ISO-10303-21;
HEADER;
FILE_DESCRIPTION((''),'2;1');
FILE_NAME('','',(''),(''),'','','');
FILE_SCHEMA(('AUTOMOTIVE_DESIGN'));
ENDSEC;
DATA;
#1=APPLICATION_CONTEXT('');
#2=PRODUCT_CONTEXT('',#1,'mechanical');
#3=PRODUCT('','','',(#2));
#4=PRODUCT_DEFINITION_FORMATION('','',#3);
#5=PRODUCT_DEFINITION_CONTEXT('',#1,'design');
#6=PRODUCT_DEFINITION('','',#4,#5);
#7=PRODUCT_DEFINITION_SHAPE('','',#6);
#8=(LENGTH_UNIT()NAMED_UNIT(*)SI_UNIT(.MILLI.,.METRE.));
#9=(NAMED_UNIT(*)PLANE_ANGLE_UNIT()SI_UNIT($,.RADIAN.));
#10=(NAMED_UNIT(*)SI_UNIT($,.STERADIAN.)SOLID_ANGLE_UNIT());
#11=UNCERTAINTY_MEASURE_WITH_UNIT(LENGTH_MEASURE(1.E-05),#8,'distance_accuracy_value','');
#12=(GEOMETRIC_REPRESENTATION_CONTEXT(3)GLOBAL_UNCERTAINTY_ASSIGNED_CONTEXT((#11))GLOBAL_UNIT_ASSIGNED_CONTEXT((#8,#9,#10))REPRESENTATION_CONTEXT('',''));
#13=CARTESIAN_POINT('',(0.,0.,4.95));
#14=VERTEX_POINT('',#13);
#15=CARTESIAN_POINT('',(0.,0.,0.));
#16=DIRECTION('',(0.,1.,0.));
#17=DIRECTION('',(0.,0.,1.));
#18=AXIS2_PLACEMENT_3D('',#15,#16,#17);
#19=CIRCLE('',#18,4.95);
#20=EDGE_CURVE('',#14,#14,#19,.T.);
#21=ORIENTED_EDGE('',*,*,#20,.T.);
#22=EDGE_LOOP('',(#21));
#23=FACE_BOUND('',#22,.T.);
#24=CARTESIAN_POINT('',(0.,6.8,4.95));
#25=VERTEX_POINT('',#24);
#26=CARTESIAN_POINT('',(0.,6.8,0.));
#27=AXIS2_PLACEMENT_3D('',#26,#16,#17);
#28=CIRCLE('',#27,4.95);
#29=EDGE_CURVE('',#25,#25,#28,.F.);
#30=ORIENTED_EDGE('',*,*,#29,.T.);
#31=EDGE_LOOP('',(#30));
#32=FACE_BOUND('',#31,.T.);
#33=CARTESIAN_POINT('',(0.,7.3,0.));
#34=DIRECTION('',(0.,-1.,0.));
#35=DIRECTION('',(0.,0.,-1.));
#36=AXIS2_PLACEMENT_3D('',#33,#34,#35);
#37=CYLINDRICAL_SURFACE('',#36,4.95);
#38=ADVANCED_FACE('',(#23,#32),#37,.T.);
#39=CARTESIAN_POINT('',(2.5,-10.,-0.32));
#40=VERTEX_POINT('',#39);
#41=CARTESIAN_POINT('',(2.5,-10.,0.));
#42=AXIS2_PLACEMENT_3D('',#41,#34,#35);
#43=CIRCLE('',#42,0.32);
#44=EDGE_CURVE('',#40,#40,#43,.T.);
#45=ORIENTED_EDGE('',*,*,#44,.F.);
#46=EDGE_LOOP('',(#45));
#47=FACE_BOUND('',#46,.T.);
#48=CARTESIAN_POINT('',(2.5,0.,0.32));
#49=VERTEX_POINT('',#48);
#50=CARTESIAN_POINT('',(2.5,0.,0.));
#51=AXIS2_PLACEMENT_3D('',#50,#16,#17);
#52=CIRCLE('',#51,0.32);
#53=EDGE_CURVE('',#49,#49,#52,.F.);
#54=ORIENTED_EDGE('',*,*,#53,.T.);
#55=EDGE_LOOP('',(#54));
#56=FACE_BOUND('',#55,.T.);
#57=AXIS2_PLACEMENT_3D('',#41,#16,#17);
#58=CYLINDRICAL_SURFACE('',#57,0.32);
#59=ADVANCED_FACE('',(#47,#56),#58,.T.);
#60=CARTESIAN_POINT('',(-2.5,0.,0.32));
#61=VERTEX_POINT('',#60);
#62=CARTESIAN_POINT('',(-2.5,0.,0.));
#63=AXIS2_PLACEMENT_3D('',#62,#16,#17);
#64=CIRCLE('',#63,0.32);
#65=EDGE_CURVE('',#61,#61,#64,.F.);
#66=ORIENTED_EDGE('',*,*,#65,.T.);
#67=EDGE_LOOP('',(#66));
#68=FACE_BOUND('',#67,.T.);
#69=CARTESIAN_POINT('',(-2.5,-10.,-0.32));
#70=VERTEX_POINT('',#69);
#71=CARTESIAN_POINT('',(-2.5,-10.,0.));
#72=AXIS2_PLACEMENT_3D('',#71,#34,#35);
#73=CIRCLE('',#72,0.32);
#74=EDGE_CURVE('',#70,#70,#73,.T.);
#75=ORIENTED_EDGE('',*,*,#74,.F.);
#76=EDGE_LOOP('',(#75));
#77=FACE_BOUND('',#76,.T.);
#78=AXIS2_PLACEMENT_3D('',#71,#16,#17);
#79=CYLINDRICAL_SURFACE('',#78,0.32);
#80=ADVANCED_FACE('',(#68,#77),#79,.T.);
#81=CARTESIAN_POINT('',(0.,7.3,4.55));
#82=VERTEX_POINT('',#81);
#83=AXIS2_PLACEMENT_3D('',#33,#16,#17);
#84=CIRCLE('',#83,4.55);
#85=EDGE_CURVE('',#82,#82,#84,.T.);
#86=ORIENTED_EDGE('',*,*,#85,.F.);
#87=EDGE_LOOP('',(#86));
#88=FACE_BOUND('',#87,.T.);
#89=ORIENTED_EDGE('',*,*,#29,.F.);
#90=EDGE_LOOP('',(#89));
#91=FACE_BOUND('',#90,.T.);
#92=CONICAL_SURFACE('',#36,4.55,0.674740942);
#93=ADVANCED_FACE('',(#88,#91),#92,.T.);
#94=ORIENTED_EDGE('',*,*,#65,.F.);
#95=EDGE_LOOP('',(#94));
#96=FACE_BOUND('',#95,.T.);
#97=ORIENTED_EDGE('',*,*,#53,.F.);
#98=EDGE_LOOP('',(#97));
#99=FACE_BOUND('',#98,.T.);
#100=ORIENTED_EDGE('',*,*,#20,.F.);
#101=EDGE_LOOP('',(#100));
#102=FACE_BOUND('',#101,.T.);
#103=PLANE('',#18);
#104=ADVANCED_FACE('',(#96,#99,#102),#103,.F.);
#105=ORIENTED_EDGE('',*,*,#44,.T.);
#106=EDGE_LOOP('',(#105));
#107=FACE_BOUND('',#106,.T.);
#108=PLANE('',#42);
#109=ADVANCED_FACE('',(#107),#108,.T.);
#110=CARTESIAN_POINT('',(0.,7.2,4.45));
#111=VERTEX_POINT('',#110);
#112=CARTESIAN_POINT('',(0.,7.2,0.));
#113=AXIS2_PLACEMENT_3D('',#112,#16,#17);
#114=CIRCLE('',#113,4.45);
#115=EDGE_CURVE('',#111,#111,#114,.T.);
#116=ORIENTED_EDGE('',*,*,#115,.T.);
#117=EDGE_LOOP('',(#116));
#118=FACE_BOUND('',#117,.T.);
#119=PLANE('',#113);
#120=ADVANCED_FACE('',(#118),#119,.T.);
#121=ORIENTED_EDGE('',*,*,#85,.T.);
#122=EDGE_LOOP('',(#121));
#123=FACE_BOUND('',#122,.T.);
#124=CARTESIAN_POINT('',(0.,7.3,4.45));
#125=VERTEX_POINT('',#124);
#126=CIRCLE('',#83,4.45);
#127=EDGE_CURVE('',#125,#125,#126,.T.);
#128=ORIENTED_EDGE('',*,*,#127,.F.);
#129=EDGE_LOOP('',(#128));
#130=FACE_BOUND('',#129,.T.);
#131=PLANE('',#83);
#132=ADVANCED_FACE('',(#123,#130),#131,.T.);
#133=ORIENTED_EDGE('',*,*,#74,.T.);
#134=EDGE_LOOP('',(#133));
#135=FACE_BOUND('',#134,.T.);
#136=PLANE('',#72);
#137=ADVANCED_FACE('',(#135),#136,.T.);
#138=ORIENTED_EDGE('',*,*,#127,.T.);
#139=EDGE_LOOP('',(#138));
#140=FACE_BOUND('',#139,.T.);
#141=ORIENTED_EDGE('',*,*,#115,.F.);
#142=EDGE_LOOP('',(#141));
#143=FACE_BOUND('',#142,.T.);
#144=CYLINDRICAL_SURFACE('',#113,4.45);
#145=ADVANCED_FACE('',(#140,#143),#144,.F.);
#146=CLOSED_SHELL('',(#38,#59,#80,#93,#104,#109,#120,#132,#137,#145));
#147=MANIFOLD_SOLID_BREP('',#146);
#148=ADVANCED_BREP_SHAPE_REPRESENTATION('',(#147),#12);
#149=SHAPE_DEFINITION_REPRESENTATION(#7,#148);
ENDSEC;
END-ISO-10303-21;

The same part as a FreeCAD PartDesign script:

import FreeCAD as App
import Part
import Sketcher
from FreeCAD import Vector


def edges_at(feature, points):
    """Names of the edges that pass closest to the given points."""
    edges = feature.Shape.Edges
    near = lambda p: min(range(len(edges)), key=lambda i: edges[i].distToShape(Part.Vertex(*p))[0])
    return sorted({f"Edge{near(p) + 1}" for p in points})

doc = App.newDocument("Part")
body = doc.addObject("PartDesign::Body", "Body")

# Sketch on XZ plane
sketch1 = body.newObject("Sketcher::SketchObject", "Sketch")
sketch1.AttachmentSupport = (doc.getObject("XZ_Plane"), [""])
sketch1.MapMode = "FlatFace"
sketch1.addGeometry(Part.Circle(Vector(0, 0, 0), Vector(0, 0, 1), 4.95), False)
sketch1.addConstraint([
    Sketcher.Constraint("Coincident", 0, 3, -1, 1),
    Sketcher.Constraint("Diameter", 0, 9.9),
])
pad1 = body.newObject("PartDesign::Pad", "Pad")
pad1.Profile = sketch1
pad1.Length = 7.3
pad1.Reversed = True
doc.recompute()

chamfer = body.newObject("PartDesign::Chamfer", "Chamfer")
chamfer.Base = (pad1, edges_at(pad1, [(-4.95, 7.3, 0)]))
chamfer.ChamferType = "Two distances"
chamfer.Size = 0.5
chamfer.Size2 = 0.4

# Sketch on XZ plane
sketch2 = body.newObject("Sketcher::SketchObject", "Sketch001")
sketch2.AttachmentSupport = (doc.getObject("XZ_Plane"), [""])
sketch2.MapMode = "FlatFace"
sketch2.addGeometry([
    Part.Circle(Vector(-2.5, 0, 0), Vector(0, 0, 1), 0.32),
    Part.Circle(Vector(2.5, 0, 0), Vector(0, 0, 1), 0.32),
], False)
sketch2.addConstraint([
    Sketcher.Constraint("Equal", 0, 1),
    Sketcher.Constraint("Symmetric", 0, 3, 1, 3, -1, 1),
    Sketcher.Constraint("PointOnObject", 0, 3, -1),
    Sketcher.Constraint("Diameter", 0, 0.64),
    Sketcher.Constraint("DistanceX", 0, 3, 1, 3, 5.0),
])
pad2 = body.newObject("PartDesign::Pad", "Pad001")
pad2.Profile = sketch2
pad2.Length = 10

# Sketch on XZ plane
sketch3 = body.newObject("Sketcher::SketchObject", "Sketch002")
sketch3.AttachmentSupport = (doc.getObject("XZ_Plane"), [""])
sketch3.MapMode = "FlatFace"
sketch3.AttachmentOffset = App.Placement(Vector(0, 0, -7.3), App.Rotation())
sketch3.addGeometry(Part.Circle(Vector(0, 0, 0), Vector(0, 0, 1), 4.45), False)
sketch3.addConstraint([
    Sketcher.Constraint("Coincident", 0, 3, -1, 1),
    Sketcher.Constraint("Diameter", 0, 8.9),
])
pocket1 = body.newObject("PartDesign::Pocket", "Pocket")
pocket1.Profile = sketch3
pocket1.Length = 0.1
pocket1.Reversed = True

doc.recompute()
